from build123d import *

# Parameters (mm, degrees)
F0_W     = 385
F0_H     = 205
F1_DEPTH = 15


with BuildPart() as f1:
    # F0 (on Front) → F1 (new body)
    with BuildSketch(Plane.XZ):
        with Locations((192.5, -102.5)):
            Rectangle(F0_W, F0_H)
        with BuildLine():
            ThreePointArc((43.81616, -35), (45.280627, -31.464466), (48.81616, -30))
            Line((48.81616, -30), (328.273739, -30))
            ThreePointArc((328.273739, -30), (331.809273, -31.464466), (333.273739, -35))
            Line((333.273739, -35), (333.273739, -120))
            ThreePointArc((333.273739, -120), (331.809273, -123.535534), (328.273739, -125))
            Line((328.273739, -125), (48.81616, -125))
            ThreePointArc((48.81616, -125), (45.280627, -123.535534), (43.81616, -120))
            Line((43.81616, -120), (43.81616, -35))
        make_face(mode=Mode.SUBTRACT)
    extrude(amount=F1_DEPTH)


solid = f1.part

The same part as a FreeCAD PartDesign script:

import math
import FreeCAD as App
import Part
import Sketcher
Q = App.Units.Quantity

doc = App.newDocument("Part")
body = doc.addObject("PartDesign::Body", "Body")

sketch1 = body.newObject("Sketcher::SketchObject", "Sketch")
sketch1.AttachmentSupport = (doc.getObject("XZ_Plane"), [""])
sketch1.MapMode = "FlatFace"
sketch1.addGeometry(Part.LineSegment(App.Vector(0, 0, 0), App.Vector(0, -205, 0)), False)
sketch1.addGeometry(Part.LineSegment(App.Vector(0, -205, 0), App.Vector(385, -205, 0)), False)
sketch1.addGeometry(Part.LineSegment(App.Vector(385, -205, 0), App.Vector(385, 0, 0)), False)
sketch1.addGeometry(Part.LineSegment(App.Vector(385, 0, 0), App.Vector(0, 0, 0)), False)
sketch1.addGeometry(Part.LineSegment(App.Vector(43.8, -120, 0), App.Vector(43.8, -35, 0)), False)
sketch1.addGeometry(Part.ArcOfCircle(Part.Circle(App.Vector(48.8, -35, 0), App.Vector(0, 0, 1), 5), math.radians(90), math.radians(180)), False)
sketch1.addGeometry(Part.LineSegment(App.Vector(48.8, -30, 0), App.Vector(328.3, -30, 0)), False)
sketch1.addGeometry(Part.ArcOfCircle(Part.Circle(App.Vector(328.3, -35, 0), App.Vector(0, 0, 1), 5), math.radians(0), math.radians(90)), False)
sketch1.addGeometry(Part.LineSegment(App.Vector(333.3, -35, 0), App.Vector(333.3, -120, 0)), False)
sketch1.addGeometry(Part.ArcOfCircle(Part.Circle(App.Vector(328.3, -120, 0), App.Vector(0, 0, 1), 5), math.radians(-90), math.radians(0)), False)
sketch1.addGeometry(Part.LineSegment(App.Vector(328.3, -125, 0), App.Vector(48.8, -125, 0)), False)
sketch1.addGeometry(Part.ArcOfCircle(Part.Circle(App.Vector(48.8, -120, 0), App.Vector(0, 0, 1), 5), math.radians(-180), math.radians(-90)), False)
sketch1.addConstraint(Sketcher.Constraint("Coincident", 0, 2, 1, 1))
sketch1.addConstraint(Sketcher.Constraint("Coincident", 1, 2, 2, 1))
sketch1.addConstraint(Sketcher.Constraint("Coincident", 2, 2, 3, 1))
sketch1.addConstraint(Sketcher.Constraint("Coincident", 3, 2, 0, 1))
sketch1.addConstraint(Sketcher.Constraint("Tangent", 4, 2, 5, 2))
sketch1.addConstraint(Sketcher.Constraint("Tangent", 5, 1, 6, 1))
sketch1.addConstraint(Sketcher.Constraint("Tangent", 6, 2, 7, 2))
sketch1.addConstraint(Sketcher.Constraint("Tangent", 7, 1, 8, 1))
sketch1.addConstraint(Sketcher.Constraint("Tangent", 8, 2, 9, 2))
sketch1.addConstraint(Sketcher.Constraint("Tangent", 9, 1, 10, 1))
sketch1.addConstraint(Sketcher.Constraint("Tangent", 10, 2, 11, 2))
sketch1.addConstraint(Sketcher.Constraint("Tangent", 11, 1, 4, 1))
sketch1.addConstraint(Sketcher.Constraint("Vertical", 0))
sketch1.addConstraint(Sketcher.Constraint("Horizontal", 1))
sketch1.addConstraint(Sketcher.Constraint("Vertical", 2))
sketch1.addConstraint(Sketcher.Constraint("Horizontal", 3))
sketch1.addConstraint(Sketcher.Constraint("Vertical", 4))
sketch1.addConstraint(Sketcher.Constraint("Horizontal", 6))
sketch1.addConstraint(Sketcher.Constraint("Vertical", 8))
sketch1.addConstraint(Sketcher.Constraint("Horizontal", 10))
sketch1.addConstraint(Sketcher.Constraint("Coincident", 3, 2, -1, 1))
sketch1.addConstraint(Sketcher.Constraint("Equal", 5, 7))
sketch1.addConstraint(Sketcher.Constraint("Equal", 7, 9))
sketch1.addConstraint(Sketcher.Constraint("Equal", 9, 11))
sketch1.addConstraint(Sketcher.Constraint("Radius", 5, Q("5.000001 mm")))
sketch1.addConstraint(Sketcher.Constraint("DistanceX", 1, 1, 1, 2, Q("385 mm")))
sketch1.addConstraint(Sketcher.Constraint("DistanceY", 0, 2, 0, 1, Q("205 mm")))
sketch1.addConstraint(Sketcher.Constraint("DistanceY", 4, 1, 4, 2, Q("85 mm")))
sketch1.addConstraint(Sketcher.Constraint("DistanceY", 5, 3, -1, 1, Q("35.000001 mm")))
sketch1.addConstraint(Sketcher.Constraint("DistanceX", 6, 1, 6, 2, Q("279.457579 mm")))
sketch1.addConstraint(Sketcher.Constraint("DistanceX", -1, 1, 5, 3, Q("48.816161 mm")))
pad1 = body.newObject("PartDesign::Pad", "Pad")
pad1.Profile = sketch1
pad1.Length = 15

doc.recompute()
